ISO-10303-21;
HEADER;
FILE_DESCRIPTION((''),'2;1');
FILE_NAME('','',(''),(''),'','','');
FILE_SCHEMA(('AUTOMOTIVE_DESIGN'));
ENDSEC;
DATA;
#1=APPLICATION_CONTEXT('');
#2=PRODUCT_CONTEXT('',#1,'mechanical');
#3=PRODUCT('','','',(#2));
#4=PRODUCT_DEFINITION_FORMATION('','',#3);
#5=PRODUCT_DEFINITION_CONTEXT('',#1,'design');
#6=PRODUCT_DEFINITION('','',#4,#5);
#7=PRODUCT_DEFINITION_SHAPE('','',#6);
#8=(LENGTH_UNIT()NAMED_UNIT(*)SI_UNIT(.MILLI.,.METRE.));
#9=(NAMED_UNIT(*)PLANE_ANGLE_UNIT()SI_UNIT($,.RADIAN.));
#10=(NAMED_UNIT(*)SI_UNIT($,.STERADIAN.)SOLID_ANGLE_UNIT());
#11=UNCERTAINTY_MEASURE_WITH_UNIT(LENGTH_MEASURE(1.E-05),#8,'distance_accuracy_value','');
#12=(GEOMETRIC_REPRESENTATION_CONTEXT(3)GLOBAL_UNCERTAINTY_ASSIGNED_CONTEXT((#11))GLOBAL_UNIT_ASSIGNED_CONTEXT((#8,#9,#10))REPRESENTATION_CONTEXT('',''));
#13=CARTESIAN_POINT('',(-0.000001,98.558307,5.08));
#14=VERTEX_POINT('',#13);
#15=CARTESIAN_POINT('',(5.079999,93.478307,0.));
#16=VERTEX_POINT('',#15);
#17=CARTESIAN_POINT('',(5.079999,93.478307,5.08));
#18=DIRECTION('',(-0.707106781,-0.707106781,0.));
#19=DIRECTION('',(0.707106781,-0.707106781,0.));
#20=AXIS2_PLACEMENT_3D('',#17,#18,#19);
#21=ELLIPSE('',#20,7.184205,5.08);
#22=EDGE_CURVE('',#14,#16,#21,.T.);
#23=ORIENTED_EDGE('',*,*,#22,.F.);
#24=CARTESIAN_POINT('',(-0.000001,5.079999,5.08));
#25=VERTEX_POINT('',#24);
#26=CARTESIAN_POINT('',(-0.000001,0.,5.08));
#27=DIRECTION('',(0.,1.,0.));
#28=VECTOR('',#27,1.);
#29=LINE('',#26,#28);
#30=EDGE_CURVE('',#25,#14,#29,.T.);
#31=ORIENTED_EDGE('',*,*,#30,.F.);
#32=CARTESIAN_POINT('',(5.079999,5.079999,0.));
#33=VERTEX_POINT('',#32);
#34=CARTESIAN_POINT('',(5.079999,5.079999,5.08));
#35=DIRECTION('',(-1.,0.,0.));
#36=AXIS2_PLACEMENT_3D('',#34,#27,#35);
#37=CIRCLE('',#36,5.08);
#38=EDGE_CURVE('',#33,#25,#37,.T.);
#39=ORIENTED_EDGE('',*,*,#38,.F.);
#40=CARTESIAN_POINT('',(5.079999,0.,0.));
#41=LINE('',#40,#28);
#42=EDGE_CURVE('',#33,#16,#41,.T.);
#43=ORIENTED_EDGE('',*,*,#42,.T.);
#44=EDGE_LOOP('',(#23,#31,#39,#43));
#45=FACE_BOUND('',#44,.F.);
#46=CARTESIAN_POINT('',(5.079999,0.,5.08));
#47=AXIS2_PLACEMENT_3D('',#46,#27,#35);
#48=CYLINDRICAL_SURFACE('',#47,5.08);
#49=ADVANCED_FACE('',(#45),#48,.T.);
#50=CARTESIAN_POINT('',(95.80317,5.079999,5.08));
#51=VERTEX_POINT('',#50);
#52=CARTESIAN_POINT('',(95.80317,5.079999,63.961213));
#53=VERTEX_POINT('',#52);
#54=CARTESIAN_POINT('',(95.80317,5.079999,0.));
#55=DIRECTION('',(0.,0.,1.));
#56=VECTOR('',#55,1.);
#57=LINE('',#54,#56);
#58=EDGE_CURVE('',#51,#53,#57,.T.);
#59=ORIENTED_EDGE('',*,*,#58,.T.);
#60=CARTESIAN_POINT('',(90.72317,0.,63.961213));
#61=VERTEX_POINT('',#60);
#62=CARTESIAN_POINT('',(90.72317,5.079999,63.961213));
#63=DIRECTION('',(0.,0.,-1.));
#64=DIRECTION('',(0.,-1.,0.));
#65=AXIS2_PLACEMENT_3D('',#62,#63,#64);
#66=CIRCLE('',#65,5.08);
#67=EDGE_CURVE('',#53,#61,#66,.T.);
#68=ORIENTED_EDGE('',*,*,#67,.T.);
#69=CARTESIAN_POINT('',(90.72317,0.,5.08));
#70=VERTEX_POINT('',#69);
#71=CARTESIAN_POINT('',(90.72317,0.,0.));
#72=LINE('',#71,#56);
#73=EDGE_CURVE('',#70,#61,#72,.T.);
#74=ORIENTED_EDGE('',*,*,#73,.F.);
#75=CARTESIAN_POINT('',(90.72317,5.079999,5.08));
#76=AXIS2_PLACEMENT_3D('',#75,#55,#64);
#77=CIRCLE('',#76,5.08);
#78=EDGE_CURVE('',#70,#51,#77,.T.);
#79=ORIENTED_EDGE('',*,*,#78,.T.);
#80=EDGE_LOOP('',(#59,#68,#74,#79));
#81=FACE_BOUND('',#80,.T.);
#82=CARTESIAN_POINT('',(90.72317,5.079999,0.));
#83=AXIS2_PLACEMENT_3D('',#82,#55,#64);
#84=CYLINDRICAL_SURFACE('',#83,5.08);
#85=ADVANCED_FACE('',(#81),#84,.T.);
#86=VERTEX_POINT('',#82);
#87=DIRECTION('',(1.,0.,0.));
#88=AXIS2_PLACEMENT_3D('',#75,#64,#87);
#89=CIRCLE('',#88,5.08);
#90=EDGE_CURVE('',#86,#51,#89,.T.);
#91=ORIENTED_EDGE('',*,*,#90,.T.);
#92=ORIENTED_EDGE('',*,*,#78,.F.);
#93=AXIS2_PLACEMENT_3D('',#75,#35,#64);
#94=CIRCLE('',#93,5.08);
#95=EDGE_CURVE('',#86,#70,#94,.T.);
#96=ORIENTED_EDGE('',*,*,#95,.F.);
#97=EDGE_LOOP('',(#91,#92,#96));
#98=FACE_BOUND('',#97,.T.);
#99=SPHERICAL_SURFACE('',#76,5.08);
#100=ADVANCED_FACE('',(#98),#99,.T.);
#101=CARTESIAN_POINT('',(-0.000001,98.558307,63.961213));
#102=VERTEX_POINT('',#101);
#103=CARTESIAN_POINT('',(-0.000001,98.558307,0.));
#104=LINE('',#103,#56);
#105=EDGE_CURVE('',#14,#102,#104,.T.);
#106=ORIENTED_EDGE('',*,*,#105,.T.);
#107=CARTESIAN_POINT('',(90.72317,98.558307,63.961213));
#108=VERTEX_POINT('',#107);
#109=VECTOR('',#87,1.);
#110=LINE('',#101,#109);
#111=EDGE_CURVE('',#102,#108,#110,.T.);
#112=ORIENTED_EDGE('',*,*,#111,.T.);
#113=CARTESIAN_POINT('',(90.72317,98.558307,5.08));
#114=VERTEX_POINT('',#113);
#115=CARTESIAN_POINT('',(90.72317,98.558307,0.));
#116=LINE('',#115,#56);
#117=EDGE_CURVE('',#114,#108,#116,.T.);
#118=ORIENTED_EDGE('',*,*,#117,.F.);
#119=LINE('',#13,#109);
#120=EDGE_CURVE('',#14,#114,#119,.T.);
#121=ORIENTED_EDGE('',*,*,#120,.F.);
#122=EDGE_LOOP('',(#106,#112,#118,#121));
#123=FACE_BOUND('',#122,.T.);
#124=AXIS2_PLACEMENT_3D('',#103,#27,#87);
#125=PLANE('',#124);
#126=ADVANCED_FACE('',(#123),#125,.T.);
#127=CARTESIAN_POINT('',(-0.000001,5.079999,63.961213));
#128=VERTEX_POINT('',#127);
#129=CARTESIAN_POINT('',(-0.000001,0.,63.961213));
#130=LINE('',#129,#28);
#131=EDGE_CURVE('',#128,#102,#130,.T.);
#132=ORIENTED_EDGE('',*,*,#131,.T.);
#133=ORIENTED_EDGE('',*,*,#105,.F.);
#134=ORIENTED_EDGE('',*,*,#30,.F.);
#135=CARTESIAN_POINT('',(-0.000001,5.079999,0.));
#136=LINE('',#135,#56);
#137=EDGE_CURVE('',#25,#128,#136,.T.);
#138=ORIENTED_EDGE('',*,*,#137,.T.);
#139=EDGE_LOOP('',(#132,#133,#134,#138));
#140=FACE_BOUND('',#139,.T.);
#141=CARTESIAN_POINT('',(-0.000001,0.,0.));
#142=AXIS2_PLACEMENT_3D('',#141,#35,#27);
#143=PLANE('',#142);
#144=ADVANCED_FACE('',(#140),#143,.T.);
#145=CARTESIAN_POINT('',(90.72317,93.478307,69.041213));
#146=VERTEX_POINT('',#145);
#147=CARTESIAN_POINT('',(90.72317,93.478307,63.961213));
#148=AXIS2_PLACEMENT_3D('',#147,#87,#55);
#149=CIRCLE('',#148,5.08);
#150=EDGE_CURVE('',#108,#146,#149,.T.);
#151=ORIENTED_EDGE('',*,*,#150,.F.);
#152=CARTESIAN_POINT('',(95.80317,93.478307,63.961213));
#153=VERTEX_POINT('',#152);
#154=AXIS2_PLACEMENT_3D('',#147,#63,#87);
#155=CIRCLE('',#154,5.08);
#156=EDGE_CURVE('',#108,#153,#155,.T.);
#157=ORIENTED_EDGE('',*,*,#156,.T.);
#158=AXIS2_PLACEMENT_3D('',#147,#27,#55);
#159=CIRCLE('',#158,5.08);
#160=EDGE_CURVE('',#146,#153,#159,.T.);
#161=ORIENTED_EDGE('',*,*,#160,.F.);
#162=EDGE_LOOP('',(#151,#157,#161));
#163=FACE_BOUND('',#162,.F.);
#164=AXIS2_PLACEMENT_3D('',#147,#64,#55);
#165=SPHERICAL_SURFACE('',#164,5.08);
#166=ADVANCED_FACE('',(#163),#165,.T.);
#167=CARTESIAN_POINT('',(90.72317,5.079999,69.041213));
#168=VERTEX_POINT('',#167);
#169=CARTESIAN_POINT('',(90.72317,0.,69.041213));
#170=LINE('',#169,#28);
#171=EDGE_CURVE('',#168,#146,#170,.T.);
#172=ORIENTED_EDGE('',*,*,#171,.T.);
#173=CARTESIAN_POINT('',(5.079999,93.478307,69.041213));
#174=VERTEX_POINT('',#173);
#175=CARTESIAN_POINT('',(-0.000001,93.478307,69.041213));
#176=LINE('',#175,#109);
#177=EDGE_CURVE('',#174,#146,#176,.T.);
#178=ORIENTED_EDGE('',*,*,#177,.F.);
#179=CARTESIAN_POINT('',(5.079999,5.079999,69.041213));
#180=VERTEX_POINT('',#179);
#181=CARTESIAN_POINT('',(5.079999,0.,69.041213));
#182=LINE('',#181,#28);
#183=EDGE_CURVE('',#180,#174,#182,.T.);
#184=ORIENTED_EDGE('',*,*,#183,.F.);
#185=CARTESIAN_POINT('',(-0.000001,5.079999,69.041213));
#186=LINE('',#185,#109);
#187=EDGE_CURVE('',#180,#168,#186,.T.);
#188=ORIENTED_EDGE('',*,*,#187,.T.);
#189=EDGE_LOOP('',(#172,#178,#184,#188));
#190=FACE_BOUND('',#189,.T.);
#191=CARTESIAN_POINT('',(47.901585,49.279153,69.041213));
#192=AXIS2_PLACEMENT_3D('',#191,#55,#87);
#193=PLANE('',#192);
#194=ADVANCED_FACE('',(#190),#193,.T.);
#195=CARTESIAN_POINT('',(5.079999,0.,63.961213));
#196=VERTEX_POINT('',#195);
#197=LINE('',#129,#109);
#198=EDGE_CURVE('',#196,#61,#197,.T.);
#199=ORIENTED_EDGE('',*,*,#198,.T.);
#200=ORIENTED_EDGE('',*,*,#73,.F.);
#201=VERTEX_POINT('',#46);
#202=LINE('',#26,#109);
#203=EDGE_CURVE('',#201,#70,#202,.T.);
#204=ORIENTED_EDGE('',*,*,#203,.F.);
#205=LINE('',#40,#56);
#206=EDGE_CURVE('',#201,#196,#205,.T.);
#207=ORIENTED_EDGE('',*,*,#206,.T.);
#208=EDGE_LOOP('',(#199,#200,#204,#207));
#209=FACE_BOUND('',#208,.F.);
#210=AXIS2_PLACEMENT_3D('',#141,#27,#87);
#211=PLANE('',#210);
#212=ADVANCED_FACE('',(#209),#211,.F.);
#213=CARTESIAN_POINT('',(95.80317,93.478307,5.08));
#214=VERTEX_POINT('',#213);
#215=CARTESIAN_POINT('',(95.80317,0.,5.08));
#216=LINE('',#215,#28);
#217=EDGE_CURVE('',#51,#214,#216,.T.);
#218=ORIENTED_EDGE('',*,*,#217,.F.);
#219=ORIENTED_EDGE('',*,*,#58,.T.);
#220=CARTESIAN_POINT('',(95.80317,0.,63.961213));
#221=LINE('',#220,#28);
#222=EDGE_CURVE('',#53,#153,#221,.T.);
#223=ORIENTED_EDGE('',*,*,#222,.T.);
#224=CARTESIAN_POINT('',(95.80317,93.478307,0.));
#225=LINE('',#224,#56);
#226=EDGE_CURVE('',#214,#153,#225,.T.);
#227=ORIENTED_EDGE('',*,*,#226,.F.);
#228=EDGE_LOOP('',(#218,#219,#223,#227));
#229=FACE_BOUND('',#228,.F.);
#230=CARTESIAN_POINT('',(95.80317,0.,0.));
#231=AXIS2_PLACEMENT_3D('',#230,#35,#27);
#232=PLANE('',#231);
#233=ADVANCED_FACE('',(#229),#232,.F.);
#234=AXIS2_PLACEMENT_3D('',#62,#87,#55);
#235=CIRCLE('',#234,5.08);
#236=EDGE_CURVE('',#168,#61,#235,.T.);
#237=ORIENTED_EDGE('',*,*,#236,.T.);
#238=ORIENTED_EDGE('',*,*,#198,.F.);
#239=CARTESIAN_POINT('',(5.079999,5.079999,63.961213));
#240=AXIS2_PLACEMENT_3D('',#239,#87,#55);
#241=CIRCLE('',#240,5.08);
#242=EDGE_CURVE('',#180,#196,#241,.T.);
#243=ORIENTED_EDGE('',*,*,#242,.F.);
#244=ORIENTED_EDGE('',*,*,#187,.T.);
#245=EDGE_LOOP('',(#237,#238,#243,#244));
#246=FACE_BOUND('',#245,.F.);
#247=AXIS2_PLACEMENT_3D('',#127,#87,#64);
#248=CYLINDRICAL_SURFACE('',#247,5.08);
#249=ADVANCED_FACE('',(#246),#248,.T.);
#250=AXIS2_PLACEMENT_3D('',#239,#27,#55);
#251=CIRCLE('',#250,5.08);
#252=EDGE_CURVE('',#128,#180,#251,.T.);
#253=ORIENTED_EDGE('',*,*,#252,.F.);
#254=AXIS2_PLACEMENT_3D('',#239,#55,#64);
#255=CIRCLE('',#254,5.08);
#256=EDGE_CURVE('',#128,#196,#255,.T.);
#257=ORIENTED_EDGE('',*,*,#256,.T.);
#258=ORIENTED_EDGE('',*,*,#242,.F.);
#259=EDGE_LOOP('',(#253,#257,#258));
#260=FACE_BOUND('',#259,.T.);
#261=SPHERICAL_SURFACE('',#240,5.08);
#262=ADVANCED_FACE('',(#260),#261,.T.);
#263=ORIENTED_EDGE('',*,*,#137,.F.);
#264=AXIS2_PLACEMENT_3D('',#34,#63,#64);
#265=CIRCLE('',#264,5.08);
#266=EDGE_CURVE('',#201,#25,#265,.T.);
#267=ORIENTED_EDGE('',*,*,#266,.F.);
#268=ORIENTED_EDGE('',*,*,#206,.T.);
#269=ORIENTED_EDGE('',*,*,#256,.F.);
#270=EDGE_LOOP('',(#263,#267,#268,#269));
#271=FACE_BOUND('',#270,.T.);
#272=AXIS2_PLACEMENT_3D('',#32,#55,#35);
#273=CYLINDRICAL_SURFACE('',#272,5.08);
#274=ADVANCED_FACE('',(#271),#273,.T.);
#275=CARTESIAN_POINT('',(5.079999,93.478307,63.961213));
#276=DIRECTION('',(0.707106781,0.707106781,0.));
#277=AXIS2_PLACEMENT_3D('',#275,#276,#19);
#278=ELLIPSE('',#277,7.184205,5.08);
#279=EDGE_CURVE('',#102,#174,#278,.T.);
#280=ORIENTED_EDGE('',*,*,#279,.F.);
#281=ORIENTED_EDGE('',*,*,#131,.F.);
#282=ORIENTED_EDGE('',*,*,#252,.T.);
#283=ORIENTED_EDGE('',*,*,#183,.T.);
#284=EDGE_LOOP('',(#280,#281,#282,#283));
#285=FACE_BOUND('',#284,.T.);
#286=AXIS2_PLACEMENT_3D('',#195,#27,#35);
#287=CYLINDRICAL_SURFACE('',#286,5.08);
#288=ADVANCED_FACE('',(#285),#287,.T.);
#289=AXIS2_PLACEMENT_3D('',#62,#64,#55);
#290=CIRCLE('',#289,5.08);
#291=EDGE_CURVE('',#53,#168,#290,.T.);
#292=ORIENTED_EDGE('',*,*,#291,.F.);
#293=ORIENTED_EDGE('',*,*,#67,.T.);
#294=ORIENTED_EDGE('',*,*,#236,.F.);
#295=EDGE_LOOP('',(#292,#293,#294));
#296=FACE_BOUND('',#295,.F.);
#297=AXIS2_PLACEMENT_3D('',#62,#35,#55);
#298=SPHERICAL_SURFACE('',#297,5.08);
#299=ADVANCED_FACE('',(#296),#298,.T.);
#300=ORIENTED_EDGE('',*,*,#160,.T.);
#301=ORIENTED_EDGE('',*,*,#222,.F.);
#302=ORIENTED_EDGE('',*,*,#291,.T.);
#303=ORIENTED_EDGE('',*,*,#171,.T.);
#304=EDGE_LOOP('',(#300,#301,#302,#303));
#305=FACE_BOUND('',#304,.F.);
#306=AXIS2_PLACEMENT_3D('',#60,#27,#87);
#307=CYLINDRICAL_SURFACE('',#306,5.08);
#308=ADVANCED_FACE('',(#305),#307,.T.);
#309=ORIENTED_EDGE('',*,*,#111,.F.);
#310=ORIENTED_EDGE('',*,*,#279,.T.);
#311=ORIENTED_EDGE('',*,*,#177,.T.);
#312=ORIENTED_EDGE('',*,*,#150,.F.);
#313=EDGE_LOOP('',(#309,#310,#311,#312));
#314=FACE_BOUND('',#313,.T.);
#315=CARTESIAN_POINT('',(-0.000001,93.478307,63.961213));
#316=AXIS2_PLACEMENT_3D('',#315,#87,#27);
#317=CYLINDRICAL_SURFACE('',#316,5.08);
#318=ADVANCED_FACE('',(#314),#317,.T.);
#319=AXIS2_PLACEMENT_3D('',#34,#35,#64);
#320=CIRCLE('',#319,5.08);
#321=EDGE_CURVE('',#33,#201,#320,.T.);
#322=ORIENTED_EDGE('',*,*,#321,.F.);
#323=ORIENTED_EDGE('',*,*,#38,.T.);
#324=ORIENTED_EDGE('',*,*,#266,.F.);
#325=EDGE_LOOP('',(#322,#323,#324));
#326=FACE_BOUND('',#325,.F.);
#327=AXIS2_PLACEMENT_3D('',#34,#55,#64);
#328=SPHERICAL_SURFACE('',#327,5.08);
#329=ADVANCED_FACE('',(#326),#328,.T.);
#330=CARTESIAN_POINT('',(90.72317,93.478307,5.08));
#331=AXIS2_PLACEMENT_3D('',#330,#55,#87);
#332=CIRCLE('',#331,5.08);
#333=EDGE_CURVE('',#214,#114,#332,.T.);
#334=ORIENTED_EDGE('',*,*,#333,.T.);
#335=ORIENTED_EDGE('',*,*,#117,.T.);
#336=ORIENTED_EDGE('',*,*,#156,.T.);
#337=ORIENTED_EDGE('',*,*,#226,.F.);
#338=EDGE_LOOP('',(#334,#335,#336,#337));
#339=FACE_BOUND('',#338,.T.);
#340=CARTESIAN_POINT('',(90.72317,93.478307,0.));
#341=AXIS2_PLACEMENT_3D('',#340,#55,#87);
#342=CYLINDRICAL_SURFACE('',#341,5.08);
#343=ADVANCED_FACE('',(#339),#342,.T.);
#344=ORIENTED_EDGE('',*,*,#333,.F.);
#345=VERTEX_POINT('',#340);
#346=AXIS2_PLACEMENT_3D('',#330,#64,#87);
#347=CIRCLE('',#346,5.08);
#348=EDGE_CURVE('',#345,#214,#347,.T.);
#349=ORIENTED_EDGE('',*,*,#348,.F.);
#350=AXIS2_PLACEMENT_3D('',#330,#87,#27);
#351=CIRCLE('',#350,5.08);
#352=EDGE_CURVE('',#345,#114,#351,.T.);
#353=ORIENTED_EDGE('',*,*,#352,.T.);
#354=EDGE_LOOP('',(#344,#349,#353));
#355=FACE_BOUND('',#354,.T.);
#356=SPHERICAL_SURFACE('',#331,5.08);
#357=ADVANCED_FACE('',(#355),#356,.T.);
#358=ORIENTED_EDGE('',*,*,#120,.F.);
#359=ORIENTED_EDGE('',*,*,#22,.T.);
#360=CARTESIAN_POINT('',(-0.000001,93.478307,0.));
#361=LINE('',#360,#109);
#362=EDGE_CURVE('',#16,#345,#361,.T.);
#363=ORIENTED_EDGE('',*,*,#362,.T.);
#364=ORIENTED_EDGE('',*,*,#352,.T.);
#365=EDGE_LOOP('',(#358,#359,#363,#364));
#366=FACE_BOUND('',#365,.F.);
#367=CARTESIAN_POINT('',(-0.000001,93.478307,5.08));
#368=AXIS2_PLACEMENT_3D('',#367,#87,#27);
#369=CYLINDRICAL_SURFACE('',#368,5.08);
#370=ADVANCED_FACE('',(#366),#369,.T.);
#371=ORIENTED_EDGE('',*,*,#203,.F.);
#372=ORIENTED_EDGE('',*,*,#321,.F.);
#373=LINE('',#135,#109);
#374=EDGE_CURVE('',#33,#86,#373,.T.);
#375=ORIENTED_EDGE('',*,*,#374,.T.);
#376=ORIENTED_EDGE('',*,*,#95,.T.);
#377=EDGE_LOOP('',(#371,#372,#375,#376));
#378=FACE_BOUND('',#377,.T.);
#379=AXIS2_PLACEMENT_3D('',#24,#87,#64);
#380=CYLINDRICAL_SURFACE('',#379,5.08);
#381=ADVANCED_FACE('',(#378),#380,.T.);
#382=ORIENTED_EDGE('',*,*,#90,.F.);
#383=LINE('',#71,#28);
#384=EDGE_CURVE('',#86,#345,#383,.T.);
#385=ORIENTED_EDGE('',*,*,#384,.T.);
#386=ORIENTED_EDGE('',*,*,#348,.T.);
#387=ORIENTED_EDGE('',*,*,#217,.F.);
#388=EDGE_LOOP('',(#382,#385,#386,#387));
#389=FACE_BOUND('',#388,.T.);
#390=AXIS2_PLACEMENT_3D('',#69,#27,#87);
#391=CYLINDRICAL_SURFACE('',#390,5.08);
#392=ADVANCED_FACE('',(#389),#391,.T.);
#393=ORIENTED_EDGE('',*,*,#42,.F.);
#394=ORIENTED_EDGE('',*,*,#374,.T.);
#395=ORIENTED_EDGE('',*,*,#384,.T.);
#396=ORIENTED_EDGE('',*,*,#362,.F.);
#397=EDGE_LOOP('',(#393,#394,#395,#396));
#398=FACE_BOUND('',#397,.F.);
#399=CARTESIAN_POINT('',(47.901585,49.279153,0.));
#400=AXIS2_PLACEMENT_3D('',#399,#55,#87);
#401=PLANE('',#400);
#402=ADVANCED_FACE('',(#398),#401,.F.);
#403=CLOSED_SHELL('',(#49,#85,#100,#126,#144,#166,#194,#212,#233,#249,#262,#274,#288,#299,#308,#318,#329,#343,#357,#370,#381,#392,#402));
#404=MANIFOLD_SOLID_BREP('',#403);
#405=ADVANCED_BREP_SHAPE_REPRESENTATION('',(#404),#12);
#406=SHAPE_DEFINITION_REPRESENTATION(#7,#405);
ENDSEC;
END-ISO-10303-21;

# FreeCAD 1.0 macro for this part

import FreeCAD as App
import Part
import Sketcher
Q = App.Units.Quantity


def edges_at(feature, points):
    """Names of the edges that pass closest to the given points."""
    edges = feature.Shape.Edges
    near = lambda p: min(range(len(edges)), key=lambda i: edges[i].distToShape(Part.Vertex(*p))[0])
    return sorted({f"Edge{near(p) + 1}" for p in points})

doc = App.newDocument("Part")
body = doc.addObject("PartDesign::Body", "Body")

# Sketch on XY plane
sketch1 = body.newObject("Sketcher::SketchObject", "Sketch")
sketch1.AttachmentSupport = (doc.getObject("XY_Plane"), [""])
sketch1.MapMode = "FlatFace"
sketch1.addGeometry([
    Part.LineSegment(App.Vector(0, 98.558307, 0), App.Vector(0, 0, 0)),
    Part.LineSegment(App.Vector(0, 0, 0), App.Vector(95.80317, 0, 0)),
    Part.LineSegment(App.Vector(95.80317, 0, 0), App.Vector(95.80317, 98.558307, 0)),
    Part.LineSegment(App.Vector(95.80317, 98.558307, 0), App.Vector(0, 98.558307, 0)),
], False)
sketch1.addConstraint([
    Sketcher.Constraint("Coincident", 0, 2, 1, 1),
    Sketcher.Constraint("Coincident", 1, 2, 2, 1),
    Sketcher.Constraint("Coincident", 2, 2, 3, 1),
    Sketcher.Constraint("Coincident", 3, 2, 0, 1),
    Sketcher.Constraint("Vertical", 0),
    Sketcher.Constraint("Horizontal", 1),
    Sketcher.Constraint("Vertical", 2),
    Sketcher.Constraint("Horizontal", 3),
    Sketcher.Constraint("Coincident", 0, 2, -1, 1),
    Sketcher.Constraint("DistanceX", 1, 1, 1, 2, Q("95.803171 mm")),
    Sketcher.Constraint("DistanceY", 0, 2, 0, 1, Q("98.558307 mm")),
])
pad1 = body.newObject("PartDesign::Pad", "Pad")
pad1.Profile = sketch1
pad1.Length = 69.041213
doc.recompute()

fillet = body.newObject("PartDesign::Fillet", "Fillet")
fillet.Base = (pad1, edges_at(pad1, [
    (47.902, 0, 69.041),
    (95.803, 49.279, 69.041),
    (47.902, 98.558, 69.041),
    (0, 49.279, 69.041),
    (95.803, 0, 34.521),
    (0, 0, 34.521),
    (95.803, 98.558, 34.521),
    (47.902, 0, 0),
    (95.803, 49.279, 0),
    (47.902, 98.558, 0),
    (0, 49.279, 0),
]))
fillet.Radius = Q("0.2 in")

doc.recompute()
